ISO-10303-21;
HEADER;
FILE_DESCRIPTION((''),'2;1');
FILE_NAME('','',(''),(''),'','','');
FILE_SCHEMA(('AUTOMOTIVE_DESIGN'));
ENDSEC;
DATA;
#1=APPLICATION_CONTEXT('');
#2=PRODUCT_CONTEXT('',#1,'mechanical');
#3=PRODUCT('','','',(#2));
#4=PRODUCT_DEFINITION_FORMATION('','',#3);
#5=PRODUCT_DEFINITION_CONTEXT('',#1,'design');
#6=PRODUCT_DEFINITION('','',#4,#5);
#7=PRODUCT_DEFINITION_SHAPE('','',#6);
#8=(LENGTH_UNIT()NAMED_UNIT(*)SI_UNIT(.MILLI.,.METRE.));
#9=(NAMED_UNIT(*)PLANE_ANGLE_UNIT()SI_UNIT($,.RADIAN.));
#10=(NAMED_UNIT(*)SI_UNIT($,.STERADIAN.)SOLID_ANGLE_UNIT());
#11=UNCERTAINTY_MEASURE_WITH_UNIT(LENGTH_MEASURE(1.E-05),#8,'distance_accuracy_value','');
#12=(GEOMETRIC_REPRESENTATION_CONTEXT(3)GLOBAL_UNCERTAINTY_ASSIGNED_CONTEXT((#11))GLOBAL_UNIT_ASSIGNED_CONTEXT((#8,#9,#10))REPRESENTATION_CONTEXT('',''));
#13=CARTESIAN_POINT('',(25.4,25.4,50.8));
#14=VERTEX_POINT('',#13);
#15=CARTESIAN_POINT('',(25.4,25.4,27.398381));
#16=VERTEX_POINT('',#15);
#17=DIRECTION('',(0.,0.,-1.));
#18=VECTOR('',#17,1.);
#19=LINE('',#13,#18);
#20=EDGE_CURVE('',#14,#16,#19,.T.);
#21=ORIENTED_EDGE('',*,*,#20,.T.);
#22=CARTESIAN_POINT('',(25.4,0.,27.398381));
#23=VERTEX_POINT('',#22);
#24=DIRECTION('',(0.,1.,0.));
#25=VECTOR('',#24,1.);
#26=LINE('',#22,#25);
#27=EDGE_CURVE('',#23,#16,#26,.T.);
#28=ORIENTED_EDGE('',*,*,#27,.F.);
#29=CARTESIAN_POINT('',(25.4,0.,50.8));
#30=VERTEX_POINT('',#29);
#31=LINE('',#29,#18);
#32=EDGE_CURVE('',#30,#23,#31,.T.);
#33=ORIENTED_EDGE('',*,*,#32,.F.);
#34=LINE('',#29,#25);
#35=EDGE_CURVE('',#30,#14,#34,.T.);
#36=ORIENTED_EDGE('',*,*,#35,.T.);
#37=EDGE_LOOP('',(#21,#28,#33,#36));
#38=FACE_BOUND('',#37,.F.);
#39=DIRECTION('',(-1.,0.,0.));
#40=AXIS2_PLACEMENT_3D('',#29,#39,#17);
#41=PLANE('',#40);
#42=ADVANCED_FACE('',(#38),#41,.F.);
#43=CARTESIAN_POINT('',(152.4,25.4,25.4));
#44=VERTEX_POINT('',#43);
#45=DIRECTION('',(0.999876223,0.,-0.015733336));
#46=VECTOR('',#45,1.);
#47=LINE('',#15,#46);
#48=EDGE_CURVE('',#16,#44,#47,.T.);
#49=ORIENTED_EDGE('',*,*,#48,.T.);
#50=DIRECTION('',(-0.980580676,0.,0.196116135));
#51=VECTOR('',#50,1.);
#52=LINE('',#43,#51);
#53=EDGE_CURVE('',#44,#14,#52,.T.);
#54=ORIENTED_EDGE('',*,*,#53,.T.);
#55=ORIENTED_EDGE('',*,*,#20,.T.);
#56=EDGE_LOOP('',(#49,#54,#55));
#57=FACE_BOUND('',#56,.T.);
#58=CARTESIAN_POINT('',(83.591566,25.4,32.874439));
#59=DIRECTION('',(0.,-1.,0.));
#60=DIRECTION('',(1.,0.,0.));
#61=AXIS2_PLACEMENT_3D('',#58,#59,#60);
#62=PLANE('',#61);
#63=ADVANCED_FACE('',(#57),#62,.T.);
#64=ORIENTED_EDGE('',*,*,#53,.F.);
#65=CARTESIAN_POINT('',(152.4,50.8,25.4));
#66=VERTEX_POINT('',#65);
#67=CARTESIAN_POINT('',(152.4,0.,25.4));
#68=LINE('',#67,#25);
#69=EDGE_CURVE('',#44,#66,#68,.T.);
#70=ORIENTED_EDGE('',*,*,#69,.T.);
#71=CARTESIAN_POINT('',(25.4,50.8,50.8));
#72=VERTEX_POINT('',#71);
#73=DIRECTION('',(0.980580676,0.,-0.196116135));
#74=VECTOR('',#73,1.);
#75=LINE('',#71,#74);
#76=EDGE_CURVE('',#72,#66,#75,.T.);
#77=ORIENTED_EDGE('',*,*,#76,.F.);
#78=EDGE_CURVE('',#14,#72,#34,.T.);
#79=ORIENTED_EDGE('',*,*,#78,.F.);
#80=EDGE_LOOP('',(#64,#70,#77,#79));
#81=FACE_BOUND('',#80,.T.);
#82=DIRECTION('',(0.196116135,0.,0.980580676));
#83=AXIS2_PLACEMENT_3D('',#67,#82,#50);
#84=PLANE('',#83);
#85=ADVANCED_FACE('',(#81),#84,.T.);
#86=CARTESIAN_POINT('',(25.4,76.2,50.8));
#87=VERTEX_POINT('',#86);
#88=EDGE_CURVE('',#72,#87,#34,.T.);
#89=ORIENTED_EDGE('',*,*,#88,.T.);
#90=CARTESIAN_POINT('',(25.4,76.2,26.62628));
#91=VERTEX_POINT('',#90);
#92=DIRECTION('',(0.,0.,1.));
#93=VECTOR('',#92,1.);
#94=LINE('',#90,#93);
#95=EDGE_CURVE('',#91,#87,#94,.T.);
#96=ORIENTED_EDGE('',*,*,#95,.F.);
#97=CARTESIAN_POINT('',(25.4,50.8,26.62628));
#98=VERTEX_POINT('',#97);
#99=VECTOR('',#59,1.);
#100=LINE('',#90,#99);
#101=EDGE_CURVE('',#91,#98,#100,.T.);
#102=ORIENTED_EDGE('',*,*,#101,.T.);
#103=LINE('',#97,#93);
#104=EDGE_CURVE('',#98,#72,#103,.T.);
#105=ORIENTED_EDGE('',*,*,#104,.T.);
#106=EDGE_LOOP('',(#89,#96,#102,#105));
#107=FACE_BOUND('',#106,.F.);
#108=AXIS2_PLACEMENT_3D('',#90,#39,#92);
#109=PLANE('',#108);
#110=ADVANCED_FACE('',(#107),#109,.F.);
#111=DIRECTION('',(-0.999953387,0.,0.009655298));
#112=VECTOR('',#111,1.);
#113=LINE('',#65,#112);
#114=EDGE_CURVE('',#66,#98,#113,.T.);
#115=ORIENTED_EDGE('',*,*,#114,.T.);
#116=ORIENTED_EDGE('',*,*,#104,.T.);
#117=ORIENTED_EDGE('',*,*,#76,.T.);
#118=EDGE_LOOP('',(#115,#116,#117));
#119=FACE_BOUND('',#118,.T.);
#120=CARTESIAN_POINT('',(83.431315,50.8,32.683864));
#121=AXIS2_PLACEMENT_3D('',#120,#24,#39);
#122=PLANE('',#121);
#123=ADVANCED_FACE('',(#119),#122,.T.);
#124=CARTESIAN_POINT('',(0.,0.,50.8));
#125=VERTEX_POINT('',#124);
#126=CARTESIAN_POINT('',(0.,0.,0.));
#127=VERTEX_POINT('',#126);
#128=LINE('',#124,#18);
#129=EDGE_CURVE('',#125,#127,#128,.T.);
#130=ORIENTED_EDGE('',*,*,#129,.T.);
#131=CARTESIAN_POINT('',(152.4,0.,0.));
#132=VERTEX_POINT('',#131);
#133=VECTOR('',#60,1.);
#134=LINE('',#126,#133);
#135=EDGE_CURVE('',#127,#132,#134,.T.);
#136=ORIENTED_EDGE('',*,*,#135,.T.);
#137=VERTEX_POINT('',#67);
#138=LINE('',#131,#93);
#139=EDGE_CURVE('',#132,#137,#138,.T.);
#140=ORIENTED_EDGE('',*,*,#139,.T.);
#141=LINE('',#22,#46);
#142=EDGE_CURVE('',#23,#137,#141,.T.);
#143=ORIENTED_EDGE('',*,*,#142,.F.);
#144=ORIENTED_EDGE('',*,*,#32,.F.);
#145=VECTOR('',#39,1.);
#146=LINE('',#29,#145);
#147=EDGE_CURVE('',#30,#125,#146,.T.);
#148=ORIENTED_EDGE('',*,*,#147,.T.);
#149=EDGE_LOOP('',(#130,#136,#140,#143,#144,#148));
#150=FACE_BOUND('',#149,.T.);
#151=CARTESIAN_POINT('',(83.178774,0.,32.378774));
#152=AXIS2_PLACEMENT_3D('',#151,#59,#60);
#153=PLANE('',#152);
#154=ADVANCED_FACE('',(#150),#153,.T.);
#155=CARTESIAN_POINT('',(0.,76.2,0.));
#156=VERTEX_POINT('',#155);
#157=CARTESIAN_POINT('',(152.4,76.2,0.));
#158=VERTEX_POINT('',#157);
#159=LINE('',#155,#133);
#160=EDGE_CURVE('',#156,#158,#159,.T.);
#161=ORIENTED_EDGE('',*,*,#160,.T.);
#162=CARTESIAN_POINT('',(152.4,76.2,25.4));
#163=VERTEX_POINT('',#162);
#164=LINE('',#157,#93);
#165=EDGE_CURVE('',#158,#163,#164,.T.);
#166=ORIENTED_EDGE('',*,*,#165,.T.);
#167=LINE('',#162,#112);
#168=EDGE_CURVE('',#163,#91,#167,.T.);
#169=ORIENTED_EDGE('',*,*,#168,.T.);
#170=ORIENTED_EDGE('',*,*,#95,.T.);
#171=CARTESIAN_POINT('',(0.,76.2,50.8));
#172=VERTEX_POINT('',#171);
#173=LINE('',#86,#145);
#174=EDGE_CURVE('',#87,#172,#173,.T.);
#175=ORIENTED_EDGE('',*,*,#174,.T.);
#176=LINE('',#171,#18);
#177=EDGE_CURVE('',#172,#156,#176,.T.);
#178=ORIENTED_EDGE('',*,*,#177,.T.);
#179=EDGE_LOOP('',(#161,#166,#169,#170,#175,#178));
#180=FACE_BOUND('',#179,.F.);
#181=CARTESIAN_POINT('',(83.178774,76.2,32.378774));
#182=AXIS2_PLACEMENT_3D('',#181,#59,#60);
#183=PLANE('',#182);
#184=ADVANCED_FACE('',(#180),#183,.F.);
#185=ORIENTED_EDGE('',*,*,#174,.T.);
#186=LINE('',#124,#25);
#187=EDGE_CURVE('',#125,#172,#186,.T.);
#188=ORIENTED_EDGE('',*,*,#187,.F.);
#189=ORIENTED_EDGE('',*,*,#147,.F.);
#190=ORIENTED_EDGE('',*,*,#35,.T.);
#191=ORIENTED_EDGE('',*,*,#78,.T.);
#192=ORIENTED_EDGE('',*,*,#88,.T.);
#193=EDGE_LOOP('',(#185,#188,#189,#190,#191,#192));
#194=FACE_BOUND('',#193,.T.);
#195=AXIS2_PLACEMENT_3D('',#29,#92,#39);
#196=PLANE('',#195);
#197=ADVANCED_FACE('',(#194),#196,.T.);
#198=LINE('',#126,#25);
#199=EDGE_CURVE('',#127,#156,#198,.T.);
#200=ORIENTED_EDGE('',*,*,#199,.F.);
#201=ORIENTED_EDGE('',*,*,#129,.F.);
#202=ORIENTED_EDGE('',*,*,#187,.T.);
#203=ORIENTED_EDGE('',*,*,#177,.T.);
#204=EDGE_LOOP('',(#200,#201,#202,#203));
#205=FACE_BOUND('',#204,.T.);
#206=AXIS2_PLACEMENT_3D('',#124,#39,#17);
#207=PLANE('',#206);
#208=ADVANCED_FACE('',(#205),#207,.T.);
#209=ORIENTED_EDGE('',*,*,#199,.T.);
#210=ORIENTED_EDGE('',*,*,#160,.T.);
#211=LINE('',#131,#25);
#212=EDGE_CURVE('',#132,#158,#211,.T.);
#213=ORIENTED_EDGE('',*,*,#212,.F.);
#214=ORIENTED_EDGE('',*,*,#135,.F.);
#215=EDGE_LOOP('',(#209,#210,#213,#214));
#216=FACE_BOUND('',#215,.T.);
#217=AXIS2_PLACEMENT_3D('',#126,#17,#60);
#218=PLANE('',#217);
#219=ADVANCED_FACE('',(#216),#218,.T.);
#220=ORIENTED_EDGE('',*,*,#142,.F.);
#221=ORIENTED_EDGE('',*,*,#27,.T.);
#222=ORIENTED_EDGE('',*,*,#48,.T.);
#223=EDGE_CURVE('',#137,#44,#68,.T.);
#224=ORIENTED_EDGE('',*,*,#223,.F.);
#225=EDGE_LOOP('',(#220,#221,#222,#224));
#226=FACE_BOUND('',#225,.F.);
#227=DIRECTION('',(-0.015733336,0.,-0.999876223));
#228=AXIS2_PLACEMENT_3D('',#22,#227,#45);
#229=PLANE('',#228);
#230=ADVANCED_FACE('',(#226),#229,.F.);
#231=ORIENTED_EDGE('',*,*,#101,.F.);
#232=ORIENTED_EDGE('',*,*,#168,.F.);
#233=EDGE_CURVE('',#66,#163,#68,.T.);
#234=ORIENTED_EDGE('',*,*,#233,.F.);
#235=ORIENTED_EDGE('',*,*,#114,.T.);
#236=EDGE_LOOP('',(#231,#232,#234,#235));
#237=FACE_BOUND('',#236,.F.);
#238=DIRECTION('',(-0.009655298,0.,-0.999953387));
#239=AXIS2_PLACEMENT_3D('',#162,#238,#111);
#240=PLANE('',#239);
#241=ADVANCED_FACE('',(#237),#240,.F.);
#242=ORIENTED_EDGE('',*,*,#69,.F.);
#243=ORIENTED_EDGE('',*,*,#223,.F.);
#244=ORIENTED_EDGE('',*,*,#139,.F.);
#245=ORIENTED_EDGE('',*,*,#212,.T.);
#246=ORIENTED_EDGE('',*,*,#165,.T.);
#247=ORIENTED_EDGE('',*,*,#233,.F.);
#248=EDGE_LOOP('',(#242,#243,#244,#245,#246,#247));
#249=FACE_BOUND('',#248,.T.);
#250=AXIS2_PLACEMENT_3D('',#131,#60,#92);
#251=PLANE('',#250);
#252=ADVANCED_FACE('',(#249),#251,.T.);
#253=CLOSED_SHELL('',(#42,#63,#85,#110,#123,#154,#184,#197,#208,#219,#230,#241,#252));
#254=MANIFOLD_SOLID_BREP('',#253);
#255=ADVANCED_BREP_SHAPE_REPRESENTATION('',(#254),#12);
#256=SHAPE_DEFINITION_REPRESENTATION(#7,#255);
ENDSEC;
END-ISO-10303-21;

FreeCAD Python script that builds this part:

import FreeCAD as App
import Part
import Sketcher
from FreeCAD import Vector
Q = App.Units.Quantity


def add_polygon(sketch, points):
    """Adds a closed chain of lines whose ends are joined by coincident constraints."""
    first, n = sketch.GeometryCount, len(points)
    for a, b in zip(points, points[1:] + points[:1]):
        sketch.addGeometry(Part.LineSegment(App.Vector(*a, 0), App.Vector(*b, 0)), False)
    for i in range(n):
        sketch.addConstraint(Sketcher.Constraint("Coincident", first + i, 2, first + (i + 1) % n, 1))

doc = App.newDocument("Part")
body = doc.addObject("PartDesign::Body", "Body")

# Sketch on XZ plane
sketch1 = doc.addObject("Sketcher::SketchObject", "Sketch")
body.addObject(sketch1)
sketch1.AttachmentSupport = (doc.XZ_Plane, [""])
sketch1.MapMode = "FlatFace"
add_polygon(sketch1, [(0, 51), (0, 0), (152, 0), (152, 25), (25, 25), (25, 51)])  # lines 0-5
sketch1.addConstraint([
    Sketcher.Constraint("Vertical", 0),
    Sketcher.Constraint("Horizontal", 1),
    Sketcher.Constraint("Vertical", 2),
    Sketcher.Constraint("Horizontal", 3),
    Sketcher.Constraint("Vertical", 4),
    Sketcher.Constraint("Horizontal", 5),
    Sketcher.Constraint("Coincident", 0, 2, -1, 1),
    Sketcher.Constraint("Equal", 5, 2),
    Sketcher.Constraint("Equal", 2, 4),
    Sketcher.Constraint("DistanceX", 1, 1, 1, 2, Q("6 in")),
    Sketcher.Constraint("DistanceX", 3, 2, 3, 1, Q("5 in")),
])
pad1 = doc.addObject("PartDesign::Pad", "Pad")
body.addObject(pad1)
pad1.Profile = sketch1
pad1.Length = Q("3 in")
pad1.Reversed = True

# Sketch on XZ plane
sketch2 = doc.addObject("Sketcher::SketchObject", "Sketch001")
body.addObject(sketch2)
sketch2.AttachmentSupport = (doc.XZ_Plane, [""])
sketch2.MapMode = "FlatFace"
add_polygon(sketch2, [(152, 25), (25, 51), (25, 25)])  # lines 0-2
sketch2.addConstraint([
    Sketcher.Constraint("Vertical", 1),
    Sketcher.Constraint("Horizontal", 2),
    Sketcher.Constraint("DistanceX", 2, 1, 2, 2, Q("5 in")),
    Sketcher.Constraint("DistanceY", 1, 2, 1, 1, Q("1 in")),
    Sketcher.Constraint("DistanceX", -1, 1, 0, 2, Q("1 in")),
    Sketcher.Constraint("DistanceY", -1, 1, 0, 2, Q("2 in")),
])
pad2 = doc.addObject("PartDesign::Pad", "Pad001")
body.addObject(pad2)
pad2.Profile = sketch2
pad2.Length = Q("3 in")
pad2.Reversed = True

# Sketch on XZ plane
sketch3 = doc.addObject("Sketcher::SketchObject", "Sketch002")
body.addObject(sketch3)
sketch3.AttachmentSupport = (doc.XZ_Plane, [""])
sketch3.MapMode = "FlatFace"
add_polygon(sketch3, [(152, 25), (25, 51), (25, 27)])  # lines 0-2
sketch3.addConstraint([
    Sketcher.Constraint("Vertical", 1),
    Sketcher.Constraint("DistanceX", -1, 1, 0, 2, Q("1 in")),
    Sketcher.Constraint("DistanceY", -1, 1, 0, 2, Q("2 in")),
    Sketcher.Constraint("DistanceX", -1, 1, 2, 2, Q("6 in")),
    Sketcher.Constraint("DistanceY", -1, 1, 2, 2, Q("1 in")),
    Sketcher.Constraint("DistanceY", 1, 2, 1, 1, 23.401619),
])
pocket1 = doc.addObject("PartDesign::Pocket", "Pocket")
body.addObject(pocket1)
pocket1.Profile = sketch3
pocket1.Length = Q("1 in")

# Sketch on XZ plane
sketch4 = doc.addObject("Sketcher::SketchObject", "Sketch003")
body.addObject(sketch4)
sketch4.AttachmentSupport = (doc.XZ_Plane, [""])
sketch4.MapMode = "FlatFace"
sketch4.AttachmentOffset = App.Placement(Vector(0, 0, -3 * 25.4), App.Rotation())
add_polygon(sketch4, [(25, 27), (25, 51), (152, 25)])  # lines 0-2
sketch4.addConstraint([
    Sketcher.Constraint("Vertical", 0),
    Sketcher.Constraint("DistanceX", -1, 1, 0, 2, Q("1 in")),
    Sketcher.Constraint("DistanceY", -1, 1, 0, 2, Q("2 in")),
    Sketcher.Constraint("DistanceX", -1, 1, 1, 2, Q("6 in")),
    Sketcher.Constraint("DistanceY", -1, 1, 1, 2, Q("1 in")),
    Sketcher.Constraint("DistanceY", 0, 1, 0, 2, 24.17372),
])
pocket2 = doc.addObject("PartDesign::Pocket", "Pocket001")
body.addObject(pocket2)
pocket2.Profile = sketch4
pocket2.Length = Q("1 in")
pocket2.Reversed = True

doc.recompute()
